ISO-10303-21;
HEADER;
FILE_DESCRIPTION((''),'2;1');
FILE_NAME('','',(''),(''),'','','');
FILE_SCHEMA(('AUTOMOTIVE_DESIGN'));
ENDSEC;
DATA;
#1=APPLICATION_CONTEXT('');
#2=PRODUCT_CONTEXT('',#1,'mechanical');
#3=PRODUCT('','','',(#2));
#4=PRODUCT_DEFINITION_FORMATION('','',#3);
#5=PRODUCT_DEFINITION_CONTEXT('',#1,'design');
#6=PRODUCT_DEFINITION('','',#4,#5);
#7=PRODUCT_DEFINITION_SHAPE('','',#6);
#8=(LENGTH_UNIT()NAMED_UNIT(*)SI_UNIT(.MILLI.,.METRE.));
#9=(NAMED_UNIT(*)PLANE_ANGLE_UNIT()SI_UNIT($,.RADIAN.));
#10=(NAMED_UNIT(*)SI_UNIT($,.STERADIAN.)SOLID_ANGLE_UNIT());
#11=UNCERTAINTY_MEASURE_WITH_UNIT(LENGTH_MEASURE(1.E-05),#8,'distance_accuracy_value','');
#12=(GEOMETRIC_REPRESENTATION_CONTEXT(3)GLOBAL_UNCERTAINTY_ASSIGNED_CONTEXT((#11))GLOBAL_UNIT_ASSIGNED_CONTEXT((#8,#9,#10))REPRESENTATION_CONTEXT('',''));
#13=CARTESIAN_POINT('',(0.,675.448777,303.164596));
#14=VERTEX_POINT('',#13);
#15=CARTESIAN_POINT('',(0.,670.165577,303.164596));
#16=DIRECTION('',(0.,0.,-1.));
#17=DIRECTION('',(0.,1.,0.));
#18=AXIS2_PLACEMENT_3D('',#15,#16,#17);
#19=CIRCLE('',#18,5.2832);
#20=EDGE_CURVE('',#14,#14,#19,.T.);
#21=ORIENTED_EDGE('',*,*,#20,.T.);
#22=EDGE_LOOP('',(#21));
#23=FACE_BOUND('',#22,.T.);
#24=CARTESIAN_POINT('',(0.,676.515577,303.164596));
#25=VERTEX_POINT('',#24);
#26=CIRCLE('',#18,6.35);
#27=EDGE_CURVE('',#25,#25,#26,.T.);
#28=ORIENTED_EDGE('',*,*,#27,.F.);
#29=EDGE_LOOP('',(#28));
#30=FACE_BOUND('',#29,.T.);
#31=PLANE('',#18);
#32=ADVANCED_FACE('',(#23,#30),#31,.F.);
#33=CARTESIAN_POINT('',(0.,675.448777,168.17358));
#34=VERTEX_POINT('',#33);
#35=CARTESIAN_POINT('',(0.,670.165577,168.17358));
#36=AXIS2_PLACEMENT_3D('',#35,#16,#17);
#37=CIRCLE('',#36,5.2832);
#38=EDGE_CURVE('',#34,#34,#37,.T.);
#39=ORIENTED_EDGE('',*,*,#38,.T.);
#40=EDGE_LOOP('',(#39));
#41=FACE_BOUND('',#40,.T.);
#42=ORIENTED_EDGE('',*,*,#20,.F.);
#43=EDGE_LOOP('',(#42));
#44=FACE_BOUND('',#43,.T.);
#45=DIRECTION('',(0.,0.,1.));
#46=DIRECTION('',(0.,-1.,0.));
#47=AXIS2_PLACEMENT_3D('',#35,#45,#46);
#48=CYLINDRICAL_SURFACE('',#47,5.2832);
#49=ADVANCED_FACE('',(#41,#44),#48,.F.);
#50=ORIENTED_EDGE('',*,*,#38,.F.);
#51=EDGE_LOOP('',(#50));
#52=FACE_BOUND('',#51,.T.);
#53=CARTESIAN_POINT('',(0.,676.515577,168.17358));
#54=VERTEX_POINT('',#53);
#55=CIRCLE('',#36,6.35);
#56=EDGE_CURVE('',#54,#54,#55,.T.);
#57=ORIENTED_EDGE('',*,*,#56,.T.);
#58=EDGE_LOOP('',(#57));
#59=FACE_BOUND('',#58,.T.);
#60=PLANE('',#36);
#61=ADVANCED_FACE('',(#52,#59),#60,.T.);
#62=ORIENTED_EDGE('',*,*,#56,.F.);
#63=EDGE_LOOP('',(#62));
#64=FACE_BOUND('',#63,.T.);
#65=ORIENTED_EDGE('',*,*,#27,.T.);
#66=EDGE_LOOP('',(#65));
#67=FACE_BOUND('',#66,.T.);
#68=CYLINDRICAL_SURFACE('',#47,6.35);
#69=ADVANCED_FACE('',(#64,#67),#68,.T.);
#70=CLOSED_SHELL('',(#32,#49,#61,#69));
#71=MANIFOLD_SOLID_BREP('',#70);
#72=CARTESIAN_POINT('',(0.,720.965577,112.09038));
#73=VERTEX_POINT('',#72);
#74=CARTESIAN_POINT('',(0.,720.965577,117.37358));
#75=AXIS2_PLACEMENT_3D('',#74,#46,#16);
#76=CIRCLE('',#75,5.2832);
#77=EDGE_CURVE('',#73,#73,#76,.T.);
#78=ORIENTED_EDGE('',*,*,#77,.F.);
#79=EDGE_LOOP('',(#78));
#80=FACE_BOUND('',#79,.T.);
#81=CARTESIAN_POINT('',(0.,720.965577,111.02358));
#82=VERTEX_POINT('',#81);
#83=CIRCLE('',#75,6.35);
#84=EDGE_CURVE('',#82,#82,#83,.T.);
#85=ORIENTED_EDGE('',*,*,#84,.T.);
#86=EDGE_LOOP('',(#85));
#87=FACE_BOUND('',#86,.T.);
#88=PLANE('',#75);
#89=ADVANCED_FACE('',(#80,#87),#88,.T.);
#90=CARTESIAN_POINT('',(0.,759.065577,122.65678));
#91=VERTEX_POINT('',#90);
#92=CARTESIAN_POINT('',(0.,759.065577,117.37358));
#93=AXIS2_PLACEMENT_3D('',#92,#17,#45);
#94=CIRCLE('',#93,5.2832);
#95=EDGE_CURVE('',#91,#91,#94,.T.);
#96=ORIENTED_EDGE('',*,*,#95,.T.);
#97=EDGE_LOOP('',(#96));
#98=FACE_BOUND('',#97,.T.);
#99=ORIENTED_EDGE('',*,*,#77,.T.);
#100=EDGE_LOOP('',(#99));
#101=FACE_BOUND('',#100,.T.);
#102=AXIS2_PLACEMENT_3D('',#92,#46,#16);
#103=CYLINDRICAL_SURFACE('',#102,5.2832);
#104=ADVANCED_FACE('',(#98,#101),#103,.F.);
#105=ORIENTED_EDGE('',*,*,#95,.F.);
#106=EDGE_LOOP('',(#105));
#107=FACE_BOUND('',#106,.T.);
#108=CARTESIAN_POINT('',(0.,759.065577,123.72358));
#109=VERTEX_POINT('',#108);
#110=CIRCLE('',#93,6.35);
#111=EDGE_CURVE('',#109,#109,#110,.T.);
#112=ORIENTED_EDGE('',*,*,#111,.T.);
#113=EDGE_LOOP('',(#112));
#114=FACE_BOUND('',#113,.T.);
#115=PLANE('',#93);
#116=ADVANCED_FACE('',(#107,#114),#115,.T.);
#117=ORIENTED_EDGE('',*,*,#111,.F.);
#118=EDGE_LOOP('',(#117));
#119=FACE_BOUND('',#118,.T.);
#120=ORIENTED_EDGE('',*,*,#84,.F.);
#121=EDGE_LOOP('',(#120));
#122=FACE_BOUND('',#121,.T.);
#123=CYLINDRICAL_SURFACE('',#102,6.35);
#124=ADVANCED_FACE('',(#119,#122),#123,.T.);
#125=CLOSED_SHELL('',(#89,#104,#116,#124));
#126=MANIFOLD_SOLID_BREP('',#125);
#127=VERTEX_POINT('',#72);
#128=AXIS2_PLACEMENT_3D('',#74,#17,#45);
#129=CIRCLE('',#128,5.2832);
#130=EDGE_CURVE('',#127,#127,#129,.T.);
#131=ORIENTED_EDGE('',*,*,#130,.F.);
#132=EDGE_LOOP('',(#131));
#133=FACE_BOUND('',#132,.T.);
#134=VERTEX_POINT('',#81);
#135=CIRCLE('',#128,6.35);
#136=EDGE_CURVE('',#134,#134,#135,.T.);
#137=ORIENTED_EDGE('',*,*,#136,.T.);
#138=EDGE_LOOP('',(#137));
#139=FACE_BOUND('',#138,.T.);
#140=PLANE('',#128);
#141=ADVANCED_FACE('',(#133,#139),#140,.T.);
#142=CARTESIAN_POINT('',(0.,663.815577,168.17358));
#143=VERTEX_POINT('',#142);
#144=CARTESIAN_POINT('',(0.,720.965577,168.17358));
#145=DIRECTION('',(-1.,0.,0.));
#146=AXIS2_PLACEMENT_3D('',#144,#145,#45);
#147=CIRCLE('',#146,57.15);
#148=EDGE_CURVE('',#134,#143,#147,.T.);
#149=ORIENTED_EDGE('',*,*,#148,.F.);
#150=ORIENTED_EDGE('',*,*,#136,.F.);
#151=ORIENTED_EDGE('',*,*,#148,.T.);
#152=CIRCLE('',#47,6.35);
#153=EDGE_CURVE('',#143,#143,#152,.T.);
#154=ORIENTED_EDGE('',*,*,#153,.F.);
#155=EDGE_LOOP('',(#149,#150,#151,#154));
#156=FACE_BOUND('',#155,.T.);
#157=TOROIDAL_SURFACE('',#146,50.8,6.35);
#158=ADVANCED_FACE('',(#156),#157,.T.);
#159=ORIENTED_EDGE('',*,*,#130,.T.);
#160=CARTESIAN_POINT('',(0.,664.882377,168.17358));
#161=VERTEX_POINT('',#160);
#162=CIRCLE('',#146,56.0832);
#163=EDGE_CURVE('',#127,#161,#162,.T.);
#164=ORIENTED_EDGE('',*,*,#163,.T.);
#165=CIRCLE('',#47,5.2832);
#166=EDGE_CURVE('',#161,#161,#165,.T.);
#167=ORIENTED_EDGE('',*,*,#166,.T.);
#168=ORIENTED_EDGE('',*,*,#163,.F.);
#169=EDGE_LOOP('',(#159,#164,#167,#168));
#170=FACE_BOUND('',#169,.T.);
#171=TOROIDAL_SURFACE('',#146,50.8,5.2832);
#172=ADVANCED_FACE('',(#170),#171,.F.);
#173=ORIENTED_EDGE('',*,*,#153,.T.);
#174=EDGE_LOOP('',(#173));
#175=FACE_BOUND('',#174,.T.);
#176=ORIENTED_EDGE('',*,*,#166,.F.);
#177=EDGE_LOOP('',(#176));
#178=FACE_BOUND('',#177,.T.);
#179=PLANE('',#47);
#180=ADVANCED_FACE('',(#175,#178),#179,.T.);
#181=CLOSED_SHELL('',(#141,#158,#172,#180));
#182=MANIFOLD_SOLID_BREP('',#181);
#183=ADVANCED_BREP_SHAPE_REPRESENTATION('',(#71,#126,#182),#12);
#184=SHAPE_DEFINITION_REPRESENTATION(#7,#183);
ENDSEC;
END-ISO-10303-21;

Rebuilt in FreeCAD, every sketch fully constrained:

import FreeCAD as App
import Part
import Sketcher
from FreeCAD import Vector
Q = App.Units.Quantity

doc = App.newDocument("Part")
body = doc.addObject("PartDesign::Body", "Body")

sketch1 = body.newObject("Sketcher::SketchObject", "Sketch")
sketch1.AttachmentSupport = (doc.getObject("XY_Plane"), [""])
sketch1.MapMode = "FlatFace"
sketch1.AttachmentOffset = App.Placement(Vector(0, 0, 303.164596), App.Rotation())
sketch1.addGeometry([
    Part.Circle(Vector(0, 670.165577, 0), Vector(0, 0, 1), 6.35),
    Part.Circle(Vector(0, 670.165577, 0), Vector(0, 0, 1), 5.2832),
], False)
sketch1.addConstraint([
    Sketcher.Constraint("Coincident", 1, 3, 0, 3),
    Sketcher.Constraint("PointOnObject", 0, 3, -2),
    Sketcher.Constraint("Diameter", 0, Q("0.5 in")),
    Sketcher.Constraint("Diameter", 1, Q("0.416 in")),
    Sketcher.Constraint("DistanceY", -1, 1, 0, 3, Q("670.165577 mm")),
])
pad1 = body.newObject("PartDesign::Pad", "Pad")
pad1.Profile = sketch1
pad1.Length = 134.991016
pad1.Reversed = True
body2 = doc.addObject("PartDesign::Body", "Body001")

sketch2 = body2.newObject("Sketcher::SketchObject", "Sketch001")
sketch2.AttachmentSupport = (doc.getObject("XY_Plane001"), [""])
sketch2.MapMode = "FlatFace"
sketch2.AttachmentOffset = App.Placement(Vector(0, 0, 168.17358), App.Rotation())
sketch2.addGeometry([
    Part.Circle(Vector(0, 670.165577, 0), Vector(0, 0, 1), 6.35),
    Part.Circle(Vector(0, 670.165577, 0), Vector(0, 0, 1), 5.2832),
], False)
sketch2.addGeometry(Part.LineSegment(Vector(0, 720.965577, 0), Vector(10, 720.965577, 0)), True)
sketch2.addConstraint([
    Sketcher.Constraint("Horizontal", 2),
    Sketcher.Constraint("Coincident", 1, 3, 0, 3),
    Sketcher.Constraint("PointOnObject", 0, 3, -2),
    Sketcher.Constraint("PointOnObject", 2, 1, -2),
    Sketcher.Constraint("Diameter", 0, Q("0.5 in")),
    Sketcher.Constraint("Diameter", 1, Q("0.416 in")),
    Sketcher.Constraint("DistanceY", 0, 3, 2, 1, Q("2 in")),
    Sketcher.Constraint("DistanceX", 2, 1, 2, 2, Q("10 mm")),
    Sketcher.Constraint("DistanceY", -1, 1, 0, 3, Q("670.165577 mm")),
])
revolution = body2.newObject("PartDesign::Revolution", "Revolution")
revolution.Profile = sketch2
revolution.ReferenceAxis = (sketch2, ["Axis0"])
revolution.Angle = 90
body3 = doc.addObject("PartDesign::Body", "Body002")

sketch3 = body3.newObject("Sketcher::SketchObject", "Sketch002")
sketch3.AttachmentSupport = (doc.getObject("XZ_Plane002"), [""])
sketch3.MapMode = "FlatFace"
sketch3.AttachmentOffset = App.Placement(Vector(0, 0, -720.965577), App.Rotation())
sketch3.addGeometry([
    Part.Circle(Vector(0, 117.37358, 0), Vector(0, 0, 1), 6.35),
    Part.Circle(Vector(0, 117.37358, 0), Vector(0, 0, 1), 5.2832),
], False)
sketch3.addConstraint([
    Sketcher.Constraint("Coincident", 1, 3, 0, 3),
    Sketcher.Constraint("PointOnObject", 0, 3, -2),
    Sketcher.Constraint("Diameter", 0, Q("0.5 in")),
    Sketcher.Constraint("Diameter", 1, Q("0.416 in")),
    Sketcher.Constraint("DistanceY", -1, 1, 0, 3, Q("117.37358 mm")),
])
pad2 = body3.newObject("PartDesign::Pad", "Pad001")
pad2.Profile = sketch3
pad2.Length = Q("1.5 in")
pad2.Reversed = True

doc.recompute()
